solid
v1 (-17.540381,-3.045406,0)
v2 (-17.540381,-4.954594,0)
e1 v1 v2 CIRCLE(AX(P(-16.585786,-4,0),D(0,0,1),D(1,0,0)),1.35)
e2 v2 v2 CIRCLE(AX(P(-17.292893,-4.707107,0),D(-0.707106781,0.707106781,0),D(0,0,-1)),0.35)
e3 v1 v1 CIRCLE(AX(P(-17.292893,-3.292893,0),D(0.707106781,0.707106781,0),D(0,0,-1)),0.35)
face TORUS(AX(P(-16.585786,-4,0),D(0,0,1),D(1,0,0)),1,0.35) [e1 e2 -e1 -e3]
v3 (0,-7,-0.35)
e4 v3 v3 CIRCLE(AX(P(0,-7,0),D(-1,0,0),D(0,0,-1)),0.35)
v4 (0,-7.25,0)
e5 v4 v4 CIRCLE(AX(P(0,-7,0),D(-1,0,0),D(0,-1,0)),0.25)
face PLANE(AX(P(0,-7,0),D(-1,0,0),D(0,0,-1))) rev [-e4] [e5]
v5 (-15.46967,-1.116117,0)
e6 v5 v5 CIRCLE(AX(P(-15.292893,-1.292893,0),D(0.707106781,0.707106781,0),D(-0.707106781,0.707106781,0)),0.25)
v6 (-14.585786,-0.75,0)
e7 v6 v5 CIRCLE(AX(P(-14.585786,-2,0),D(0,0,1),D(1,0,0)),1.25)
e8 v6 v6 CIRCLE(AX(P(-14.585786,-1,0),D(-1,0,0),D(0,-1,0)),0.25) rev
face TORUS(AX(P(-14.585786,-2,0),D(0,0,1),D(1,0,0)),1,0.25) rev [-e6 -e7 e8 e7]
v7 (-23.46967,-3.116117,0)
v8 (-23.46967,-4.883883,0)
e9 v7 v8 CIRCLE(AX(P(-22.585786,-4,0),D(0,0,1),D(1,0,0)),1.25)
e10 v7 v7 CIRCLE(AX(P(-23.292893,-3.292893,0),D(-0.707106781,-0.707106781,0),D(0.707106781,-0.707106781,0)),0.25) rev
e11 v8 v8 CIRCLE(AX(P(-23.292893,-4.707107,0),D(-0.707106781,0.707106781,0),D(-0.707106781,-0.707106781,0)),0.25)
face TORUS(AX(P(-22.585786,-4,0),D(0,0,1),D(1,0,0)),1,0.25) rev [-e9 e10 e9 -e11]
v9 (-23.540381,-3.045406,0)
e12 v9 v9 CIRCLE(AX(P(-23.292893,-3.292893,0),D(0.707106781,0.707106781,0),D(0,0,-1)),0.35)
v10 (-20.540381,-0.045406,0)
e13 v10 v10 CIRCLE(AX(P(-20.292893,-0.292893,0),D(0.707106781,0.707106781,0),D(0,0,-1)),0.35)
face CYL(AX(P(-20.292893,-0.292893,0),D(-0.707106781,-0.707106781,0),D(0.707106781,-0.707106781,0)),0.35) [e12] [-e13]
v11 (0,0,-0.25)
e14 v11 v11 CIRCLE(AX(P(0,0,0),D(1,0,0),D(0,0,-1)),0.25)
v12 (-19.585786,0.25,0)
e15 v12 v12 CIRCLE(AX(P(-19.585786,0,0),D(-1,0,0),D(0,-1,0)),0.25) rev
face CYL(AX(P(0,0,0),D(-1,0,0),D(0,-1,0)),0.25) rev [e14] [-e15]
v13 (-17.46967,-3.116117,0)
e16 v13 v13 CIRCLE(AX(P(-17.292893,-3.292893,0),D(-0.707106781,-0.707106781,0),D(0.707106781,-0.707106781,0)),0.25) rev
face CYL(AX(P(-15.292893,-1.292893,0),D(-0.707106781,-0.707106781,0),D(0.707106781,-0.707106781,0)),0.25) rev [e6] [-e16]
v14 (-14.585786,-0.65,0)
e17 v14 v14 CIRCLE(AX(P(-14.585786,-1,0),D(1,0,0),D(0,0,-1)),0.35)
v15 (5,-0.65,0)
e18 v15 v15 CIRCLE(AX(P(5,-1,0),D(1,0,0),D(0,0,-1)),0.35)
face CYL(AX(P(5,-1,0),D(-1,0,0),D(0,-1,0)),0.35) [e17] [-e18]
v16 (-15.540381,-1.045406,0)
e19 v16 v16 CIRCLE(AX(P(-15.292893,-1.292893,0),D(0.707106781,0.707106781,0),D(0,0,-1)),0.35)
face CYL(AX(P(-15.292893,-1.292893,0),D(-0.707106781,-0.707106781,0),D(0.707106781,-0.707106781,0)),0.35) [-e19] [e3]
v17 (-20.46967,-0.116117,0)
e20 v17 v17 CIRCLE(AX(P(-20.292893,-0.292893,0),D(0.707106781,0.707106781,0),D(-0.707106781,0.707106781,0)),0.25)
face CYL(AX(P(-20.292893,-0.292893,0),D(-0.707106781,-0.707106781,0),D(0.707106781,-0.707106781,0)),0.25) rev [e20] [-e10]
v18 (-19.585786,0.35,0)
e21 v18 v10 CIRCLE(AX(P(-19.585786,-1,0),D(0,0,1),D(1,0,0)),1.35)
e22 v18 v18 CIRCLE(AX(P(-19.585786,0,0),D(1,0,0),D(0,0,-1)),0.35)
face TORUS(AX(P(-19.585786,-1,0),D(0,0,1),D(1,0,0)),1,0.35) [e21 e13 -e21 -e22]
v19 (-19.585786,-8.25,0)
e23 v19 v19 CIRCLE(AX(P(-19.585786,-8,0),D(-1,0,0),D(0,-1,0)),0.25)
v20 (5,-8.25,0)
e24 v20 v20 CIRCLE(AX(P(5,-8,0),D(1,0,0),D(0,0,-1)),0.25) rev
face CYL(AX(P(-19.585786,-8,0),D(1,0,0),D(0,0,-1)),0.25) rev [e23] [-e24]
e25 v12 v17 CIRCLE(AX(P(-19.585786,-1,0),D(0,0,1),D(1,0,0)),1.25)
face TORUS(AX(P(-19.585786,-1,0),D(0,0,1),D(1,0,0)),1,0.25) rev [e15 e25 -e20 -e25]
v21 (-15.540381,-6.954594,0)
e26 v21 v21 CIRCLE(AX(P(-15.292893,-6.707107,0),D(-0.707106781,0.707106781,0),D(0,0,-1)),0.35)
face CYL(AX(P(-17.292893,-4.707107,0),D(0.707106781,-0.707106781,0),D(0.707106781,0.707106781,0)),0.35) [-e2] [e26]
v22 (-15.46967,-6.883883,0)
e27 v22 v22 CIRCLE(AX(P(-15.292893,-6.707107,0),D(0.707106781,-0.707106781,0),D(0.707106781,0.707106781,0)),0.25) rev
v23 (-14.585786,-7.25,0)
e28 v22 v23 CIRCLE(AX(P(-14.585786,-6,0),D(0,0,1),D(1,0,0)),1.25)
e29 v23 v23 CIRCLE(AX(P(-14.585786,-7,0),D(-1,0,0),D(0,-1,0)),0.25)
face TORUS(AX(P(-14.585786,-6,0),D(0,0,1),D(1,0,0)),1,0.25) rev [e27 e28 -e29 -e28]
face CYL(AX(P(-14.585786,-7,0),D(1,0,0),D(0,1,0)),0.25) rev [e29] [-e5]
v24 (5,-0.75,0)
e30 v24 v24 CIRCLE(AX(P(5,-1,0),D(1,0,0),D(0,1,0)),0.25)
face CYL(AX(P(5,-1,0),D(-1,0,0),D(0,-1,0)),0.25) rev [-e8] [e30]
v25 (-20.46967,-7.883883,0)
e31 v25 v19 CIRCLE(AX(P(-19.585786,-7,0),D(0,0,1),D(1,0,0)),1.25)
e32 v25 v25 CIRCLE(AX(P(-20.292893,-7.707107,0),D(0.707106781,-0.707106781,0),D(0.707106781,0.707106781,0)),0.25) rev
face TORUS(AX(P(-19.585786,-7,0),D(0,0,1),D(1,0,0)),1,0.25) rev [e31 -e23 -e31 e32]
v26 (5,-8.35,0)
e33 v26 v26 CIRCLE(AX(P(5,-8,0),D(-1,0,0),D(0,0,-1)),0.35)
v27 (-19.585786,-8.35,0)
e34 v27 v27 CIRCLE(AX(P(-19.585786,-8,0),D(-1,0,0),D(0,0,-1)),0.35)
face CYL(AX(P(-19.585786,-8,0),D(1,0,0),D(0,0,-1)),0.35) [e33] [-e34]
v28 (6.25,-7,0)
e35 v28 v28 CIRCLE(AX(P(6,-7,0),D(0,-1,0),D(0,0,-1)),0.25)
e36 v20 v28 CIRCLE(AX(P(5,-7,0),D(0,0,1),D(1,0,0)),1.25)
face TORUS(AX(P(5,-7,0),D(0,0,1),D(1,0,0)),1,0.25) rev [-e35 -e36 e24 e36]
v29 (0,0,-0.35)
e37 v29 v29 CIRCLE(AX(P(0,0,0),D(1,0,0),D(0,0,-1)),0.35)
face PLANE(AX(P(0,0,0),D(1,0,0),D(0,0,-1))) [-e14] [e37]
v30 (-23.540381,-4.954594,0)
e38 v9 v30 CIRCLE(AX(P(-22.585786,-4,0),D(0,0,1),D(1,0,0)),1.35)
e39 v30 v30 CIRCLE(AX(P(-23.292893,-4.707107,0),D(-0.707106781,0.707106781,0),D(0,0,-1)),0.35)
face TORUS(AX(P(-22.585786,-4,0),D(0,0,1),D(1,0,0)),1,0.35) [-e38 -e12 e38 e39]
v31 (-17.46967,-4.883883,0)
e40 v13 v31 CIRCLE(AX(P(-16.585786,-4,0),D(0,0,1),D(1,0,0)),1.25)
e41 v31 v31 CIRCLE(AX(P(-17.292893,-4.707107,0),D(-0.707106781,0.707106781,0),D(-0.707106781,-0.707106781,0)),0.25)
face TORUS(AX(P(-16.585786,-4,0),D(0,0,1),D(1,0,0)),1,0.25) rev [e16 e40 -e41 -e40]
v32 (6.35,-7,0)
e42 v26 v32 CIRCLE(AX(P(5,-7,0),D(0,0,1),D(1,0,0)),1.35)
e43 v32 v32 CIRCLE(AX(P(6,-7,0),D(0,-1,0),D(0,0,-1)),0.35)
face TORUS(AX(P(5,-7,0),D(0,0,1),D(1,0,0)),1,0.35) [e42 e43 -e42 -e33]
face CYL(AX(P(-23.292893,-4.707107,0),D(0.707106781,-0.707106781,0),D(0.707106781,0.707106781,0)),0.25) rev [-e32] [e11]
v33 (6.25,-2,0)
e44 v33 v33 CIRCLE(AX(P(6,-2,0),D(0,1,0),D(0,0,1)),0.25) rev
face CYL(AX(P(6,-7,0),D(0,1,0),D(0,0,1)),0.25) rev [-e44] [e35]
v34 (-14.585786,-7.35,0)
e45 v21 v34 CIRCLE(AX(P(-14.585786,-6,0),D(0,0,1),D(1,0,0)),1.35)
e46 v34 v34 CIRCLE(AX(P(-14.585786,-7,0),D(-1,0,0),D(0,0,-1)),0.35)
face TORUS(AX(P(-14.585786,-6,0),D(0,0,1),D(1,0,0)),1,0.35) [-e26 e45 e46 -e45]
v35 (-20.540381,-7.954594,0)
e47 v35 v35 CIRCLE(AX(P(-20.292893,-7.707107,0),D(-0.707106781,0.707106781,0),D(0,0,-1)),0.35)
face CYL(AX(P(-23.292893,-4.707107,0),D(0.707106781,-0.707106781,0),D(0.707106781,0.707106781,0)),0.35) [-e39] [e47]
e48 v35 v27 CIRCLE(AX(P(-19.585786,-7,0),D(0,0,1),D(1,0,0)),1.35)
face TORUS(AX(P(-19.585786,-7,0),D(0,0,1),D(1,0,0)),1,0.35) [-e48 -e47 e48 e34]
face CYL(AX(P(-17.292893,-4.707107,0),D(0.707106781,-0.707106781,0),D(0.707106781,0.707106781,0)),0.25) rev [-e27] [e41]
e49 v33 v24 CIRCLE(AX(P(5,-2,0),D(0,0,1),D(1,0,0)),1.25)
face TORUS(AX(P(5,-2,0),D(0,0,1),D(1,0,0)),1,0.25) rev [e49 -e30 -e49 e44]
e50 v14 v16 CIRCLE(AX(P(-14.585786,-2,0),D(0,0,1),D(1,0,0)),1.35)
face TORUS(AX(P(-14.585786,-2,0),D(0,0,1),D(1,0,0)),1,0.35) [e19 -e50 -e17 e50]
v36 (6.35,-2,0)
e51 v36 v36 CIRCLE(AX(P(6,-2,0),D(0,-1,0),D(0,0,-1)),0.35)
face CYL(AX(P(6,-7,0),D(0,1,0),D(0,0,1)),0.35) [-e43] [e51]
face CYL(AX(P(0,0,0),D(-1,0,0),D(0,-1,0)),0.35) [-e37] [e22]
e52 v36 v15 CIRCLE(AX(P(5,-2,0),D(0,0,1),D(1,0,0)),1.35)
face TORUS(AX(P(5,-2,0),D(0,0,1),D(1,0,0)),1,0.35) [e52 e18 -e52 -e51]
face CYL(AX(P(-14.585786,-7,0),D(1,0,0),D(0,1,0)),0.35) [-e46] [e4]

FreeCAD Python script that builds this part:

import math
import FreeCAD as App
import Part
import Sketcher

V = App.Vector


def faces_at(feature, points):
    """Names of the faces that lie closest to the given points."""
    faces = feature.Shape.Faces
    near = lambda p: min(range(len(faces)), key=lambda i: faces[i].distToShape(Part.Vertex(*p))[0])
    return sorted({f"Face{near(p) + 1}" for p in points})

doc = App.newDocument("Part")
body = doc.addObject("PartDesign::Body", "Body")

sketch1 = body.newObject("Sketcher::SketchObject", "Sketch")
sketch1.AttachmentSupport = (doc.getObject("YZ_Plane"), [""])
sketch1.MapMode = "FlatFace"
sketch1.addGeometry(Part.Circle(V(0, 0, 0), V(0, 0, 1), 0.35), False)
sketch1.addConstraint([
    Sketcher.Constraint("Coincident", 0, 3, -1, 1),
    Sketcher.Constraint("Diameter", 0, 0.7),
])

sketch2 = body.newObject("Sketcher::SketchObject", "Sketch001")
sketch2.AttachmentSupport = (doc.getObject("XY_Plane"), [""])
sketch2.MapMode = "FlatFace"
sketch2.addGeometry([
    Part.LineSegment(V(0, 0, 0), V(-19.585786, 0, 0)),
    Part.ArcOfCircle(Part.Circle(V(-19.585786, -1, 0), V(0, 0, 1), 1), math.radians(90), math.radians(135)),
    Part.LineSegment(V(-20.292893, -0.292893, 0), V(-23.292893, -3.292893, 0)),
    Part.ArcOfCircle(Part.Circle(V(-22.585786, -4, 0), V(0, 0, 1), 1), math.radians(135), math.radians(225)),
    Part.LineSegment(V(-23.292893, -4.707107, 0), V(-20.292893, -7.707107, 0)),
    Part.ArcOfCircle(Part.Circle(V(-19.585786, -7, 0), V(0, 0, 1), 1), math.radians(-135), math.radians(-90)),
    Part.LineSegment(V(-19.585786, -8, 0), V(5, -8, 0)),
    Part.ArcOfCircle(Part.Circle(V(5, -7, 0), V(0, 0, 1), 1), math.radians(-90), math.radians(0)),
    Part.LineSegment(V(6, -7, 0), V(6, -2, 0)),
    Part.ArcOfCircle(Part.Circle(V(5, -2, 0), V(0, 0, 1), 1), math.radians(0), math.radians(90)),
    Part.LineSegment(V(5, -1, 0), V(-14.585786, -1, 0)),
    Part.ArcOfCircle(Part.Circle(V(-14.585786, -2, 0), V(0, 0, 1), 1), math.radians(90), math.radians(135)),
    Part.LineSegment(V(-15.292893, -1.292893, 0), V(-17.292893, -3.292893, 0)),
    Part.ArcOfCircle(Part.Circle(V(-16.585786, -4, 0), V(0, 0, 1), 1), math.radians(135), math.radians(225)),
    Part.LineSegment(V(-17.292893, -4.707107, 0), V(-15.292893, -6.707107, 0)),
    Part.ArcOfCircle(Part.Circle(V(-14.585786, -6, 0), V(0, 0, 1), 1), math.radians(-135), math.radians(-90)),
    Part.LineSegment(V(-14.585786, -7, 0), V(0, -7, 0)),
], False)
sketch2.addConstraint([
    Sketcher.Constraint("Tangent", 0, 2, 1, 1),
    Sketcher.Constraint("Tangent", 1, 2, 2, 1),
    Sketcher.Constraint("Tangent", 2, 2, 3, 1),
    Sketcher.Constraint("Tangent", 3, 2, 4, 1),
    Sketcher.Constraint("Tangent", 4, 2, 5, 1),
    Sketcher.Constraint("Tangent", 5, 2, 6, 1),
    Sketcher.Constraint("Tangent", 6, 2, 7, 1),
    Sketcher.Constraint("Tangent", 7, 2, 8, 1),
    Sketcher.Constraint("Tangent", 8, 2, 9, 1),
    Sketcher.Constraint("Tangent", 9, 2, 10, 1),
    Sketcher.Constraint("Tangent", 10, 2, 11, 1),
    Sketcher.Constraint("Tangent", 11, 2, 12, 1),
    Sketcher.Constraint("Tangent", 12, 2, 13, 1),
    Sketcher.Constraint("Tangent", 13, 2, 14, 1),
    Sketcher.Constraint("Tangent", 14, 2, 15, 1),
    Sketcher.Constraint("Tangent", 15, 2, 16, 1),
    Sketcher.Constraint("Horizontal", 0),
    Sketcher.Constraint("Horizontal", 6),
    Sketcher.Constraint("Vertical", 8),
    Sketcher.Constraint("Horizontal", 10),
    Sketcher.Constraint("Horizontal", 16),
    Sketcher.Constraint("Coincident", 0, 1, -1, 1),
    Sketcher.Constraint("Equal", 1, 3),
    Sketcher.Constraint("Equal", 3, 5),
    Sketcher.Constraint("Equal", 5, 7),
    Sketcher.Constraint("Equal", 7, 9),
    Sketcher.Constraint("Equal", 9, 11),
    Sketcher.Constraint("Equal", 11, 13),
    Sketcher.Constraint("Equal", 13, 15),
    Sketcher.Constraint("PointOnObject", 16, 2, -2),
    Sketcher.Constraint("Perpendicular", 2, 4),
    Sketcher.Constraint("Perpendicular", 4, 12),
    Sketcher.Constraint("Perpendicular", 12, 14),
    Sketcher.Constraint("Horizontal", 3, 3, 13, 3),
    Sketcher.Constraint("Horizontal", 1, 3, 9, 2),
    Sketcher.Constraint("Horizontal", 7, 2, 15, 2),
    Sketcher.Constraint("Vertical", 1, 3, 5, 3),
    Sketcher.Constraint("Vertical", 11, 3, 15, 3),
    Sketcher.Constraint("Equal", 0, 10),
    Sketcher.Constraint("Radius", 1, 1.0),
    Sketcher.Constraint("DistanceY", 8, 1, 8, 2, 5.0),
    Sketcher.Constraint("DistanceX", -1, 1, 7, 3, 5.0),
    Sketcher.Constraint("DistanceX", 0, 2, 0, 1, 19.585786),
])
doc.recompute()

additivepipe = body.newObject("PartDesign::AdditivePipe", "AdditivePipe")
additivepipe.Profile = sketch1
additivepipe.Spine = (sketch2, ["Edge1", "Edge2", "Edge3", "Edge4", "Edge5", "Edge6", "Edge7", "Edge8", "Edge9", "Edge10", "Edge11", "Edge12", "Edge13", "Edge14", "Edge15", "Edge16", "Edge17"])
doc.recompute()

thickness = body.newObject("PartDesign::Thickness", "Thickness")
thickness.Base = (additivepipe, faces_at(additivepipe, [(0, -7, 0), (0, 0, 0)]))
thickness.Value = 0.1
thickness.Reversed = True
thickness.Join = "Intersection"

doc.recompute()
